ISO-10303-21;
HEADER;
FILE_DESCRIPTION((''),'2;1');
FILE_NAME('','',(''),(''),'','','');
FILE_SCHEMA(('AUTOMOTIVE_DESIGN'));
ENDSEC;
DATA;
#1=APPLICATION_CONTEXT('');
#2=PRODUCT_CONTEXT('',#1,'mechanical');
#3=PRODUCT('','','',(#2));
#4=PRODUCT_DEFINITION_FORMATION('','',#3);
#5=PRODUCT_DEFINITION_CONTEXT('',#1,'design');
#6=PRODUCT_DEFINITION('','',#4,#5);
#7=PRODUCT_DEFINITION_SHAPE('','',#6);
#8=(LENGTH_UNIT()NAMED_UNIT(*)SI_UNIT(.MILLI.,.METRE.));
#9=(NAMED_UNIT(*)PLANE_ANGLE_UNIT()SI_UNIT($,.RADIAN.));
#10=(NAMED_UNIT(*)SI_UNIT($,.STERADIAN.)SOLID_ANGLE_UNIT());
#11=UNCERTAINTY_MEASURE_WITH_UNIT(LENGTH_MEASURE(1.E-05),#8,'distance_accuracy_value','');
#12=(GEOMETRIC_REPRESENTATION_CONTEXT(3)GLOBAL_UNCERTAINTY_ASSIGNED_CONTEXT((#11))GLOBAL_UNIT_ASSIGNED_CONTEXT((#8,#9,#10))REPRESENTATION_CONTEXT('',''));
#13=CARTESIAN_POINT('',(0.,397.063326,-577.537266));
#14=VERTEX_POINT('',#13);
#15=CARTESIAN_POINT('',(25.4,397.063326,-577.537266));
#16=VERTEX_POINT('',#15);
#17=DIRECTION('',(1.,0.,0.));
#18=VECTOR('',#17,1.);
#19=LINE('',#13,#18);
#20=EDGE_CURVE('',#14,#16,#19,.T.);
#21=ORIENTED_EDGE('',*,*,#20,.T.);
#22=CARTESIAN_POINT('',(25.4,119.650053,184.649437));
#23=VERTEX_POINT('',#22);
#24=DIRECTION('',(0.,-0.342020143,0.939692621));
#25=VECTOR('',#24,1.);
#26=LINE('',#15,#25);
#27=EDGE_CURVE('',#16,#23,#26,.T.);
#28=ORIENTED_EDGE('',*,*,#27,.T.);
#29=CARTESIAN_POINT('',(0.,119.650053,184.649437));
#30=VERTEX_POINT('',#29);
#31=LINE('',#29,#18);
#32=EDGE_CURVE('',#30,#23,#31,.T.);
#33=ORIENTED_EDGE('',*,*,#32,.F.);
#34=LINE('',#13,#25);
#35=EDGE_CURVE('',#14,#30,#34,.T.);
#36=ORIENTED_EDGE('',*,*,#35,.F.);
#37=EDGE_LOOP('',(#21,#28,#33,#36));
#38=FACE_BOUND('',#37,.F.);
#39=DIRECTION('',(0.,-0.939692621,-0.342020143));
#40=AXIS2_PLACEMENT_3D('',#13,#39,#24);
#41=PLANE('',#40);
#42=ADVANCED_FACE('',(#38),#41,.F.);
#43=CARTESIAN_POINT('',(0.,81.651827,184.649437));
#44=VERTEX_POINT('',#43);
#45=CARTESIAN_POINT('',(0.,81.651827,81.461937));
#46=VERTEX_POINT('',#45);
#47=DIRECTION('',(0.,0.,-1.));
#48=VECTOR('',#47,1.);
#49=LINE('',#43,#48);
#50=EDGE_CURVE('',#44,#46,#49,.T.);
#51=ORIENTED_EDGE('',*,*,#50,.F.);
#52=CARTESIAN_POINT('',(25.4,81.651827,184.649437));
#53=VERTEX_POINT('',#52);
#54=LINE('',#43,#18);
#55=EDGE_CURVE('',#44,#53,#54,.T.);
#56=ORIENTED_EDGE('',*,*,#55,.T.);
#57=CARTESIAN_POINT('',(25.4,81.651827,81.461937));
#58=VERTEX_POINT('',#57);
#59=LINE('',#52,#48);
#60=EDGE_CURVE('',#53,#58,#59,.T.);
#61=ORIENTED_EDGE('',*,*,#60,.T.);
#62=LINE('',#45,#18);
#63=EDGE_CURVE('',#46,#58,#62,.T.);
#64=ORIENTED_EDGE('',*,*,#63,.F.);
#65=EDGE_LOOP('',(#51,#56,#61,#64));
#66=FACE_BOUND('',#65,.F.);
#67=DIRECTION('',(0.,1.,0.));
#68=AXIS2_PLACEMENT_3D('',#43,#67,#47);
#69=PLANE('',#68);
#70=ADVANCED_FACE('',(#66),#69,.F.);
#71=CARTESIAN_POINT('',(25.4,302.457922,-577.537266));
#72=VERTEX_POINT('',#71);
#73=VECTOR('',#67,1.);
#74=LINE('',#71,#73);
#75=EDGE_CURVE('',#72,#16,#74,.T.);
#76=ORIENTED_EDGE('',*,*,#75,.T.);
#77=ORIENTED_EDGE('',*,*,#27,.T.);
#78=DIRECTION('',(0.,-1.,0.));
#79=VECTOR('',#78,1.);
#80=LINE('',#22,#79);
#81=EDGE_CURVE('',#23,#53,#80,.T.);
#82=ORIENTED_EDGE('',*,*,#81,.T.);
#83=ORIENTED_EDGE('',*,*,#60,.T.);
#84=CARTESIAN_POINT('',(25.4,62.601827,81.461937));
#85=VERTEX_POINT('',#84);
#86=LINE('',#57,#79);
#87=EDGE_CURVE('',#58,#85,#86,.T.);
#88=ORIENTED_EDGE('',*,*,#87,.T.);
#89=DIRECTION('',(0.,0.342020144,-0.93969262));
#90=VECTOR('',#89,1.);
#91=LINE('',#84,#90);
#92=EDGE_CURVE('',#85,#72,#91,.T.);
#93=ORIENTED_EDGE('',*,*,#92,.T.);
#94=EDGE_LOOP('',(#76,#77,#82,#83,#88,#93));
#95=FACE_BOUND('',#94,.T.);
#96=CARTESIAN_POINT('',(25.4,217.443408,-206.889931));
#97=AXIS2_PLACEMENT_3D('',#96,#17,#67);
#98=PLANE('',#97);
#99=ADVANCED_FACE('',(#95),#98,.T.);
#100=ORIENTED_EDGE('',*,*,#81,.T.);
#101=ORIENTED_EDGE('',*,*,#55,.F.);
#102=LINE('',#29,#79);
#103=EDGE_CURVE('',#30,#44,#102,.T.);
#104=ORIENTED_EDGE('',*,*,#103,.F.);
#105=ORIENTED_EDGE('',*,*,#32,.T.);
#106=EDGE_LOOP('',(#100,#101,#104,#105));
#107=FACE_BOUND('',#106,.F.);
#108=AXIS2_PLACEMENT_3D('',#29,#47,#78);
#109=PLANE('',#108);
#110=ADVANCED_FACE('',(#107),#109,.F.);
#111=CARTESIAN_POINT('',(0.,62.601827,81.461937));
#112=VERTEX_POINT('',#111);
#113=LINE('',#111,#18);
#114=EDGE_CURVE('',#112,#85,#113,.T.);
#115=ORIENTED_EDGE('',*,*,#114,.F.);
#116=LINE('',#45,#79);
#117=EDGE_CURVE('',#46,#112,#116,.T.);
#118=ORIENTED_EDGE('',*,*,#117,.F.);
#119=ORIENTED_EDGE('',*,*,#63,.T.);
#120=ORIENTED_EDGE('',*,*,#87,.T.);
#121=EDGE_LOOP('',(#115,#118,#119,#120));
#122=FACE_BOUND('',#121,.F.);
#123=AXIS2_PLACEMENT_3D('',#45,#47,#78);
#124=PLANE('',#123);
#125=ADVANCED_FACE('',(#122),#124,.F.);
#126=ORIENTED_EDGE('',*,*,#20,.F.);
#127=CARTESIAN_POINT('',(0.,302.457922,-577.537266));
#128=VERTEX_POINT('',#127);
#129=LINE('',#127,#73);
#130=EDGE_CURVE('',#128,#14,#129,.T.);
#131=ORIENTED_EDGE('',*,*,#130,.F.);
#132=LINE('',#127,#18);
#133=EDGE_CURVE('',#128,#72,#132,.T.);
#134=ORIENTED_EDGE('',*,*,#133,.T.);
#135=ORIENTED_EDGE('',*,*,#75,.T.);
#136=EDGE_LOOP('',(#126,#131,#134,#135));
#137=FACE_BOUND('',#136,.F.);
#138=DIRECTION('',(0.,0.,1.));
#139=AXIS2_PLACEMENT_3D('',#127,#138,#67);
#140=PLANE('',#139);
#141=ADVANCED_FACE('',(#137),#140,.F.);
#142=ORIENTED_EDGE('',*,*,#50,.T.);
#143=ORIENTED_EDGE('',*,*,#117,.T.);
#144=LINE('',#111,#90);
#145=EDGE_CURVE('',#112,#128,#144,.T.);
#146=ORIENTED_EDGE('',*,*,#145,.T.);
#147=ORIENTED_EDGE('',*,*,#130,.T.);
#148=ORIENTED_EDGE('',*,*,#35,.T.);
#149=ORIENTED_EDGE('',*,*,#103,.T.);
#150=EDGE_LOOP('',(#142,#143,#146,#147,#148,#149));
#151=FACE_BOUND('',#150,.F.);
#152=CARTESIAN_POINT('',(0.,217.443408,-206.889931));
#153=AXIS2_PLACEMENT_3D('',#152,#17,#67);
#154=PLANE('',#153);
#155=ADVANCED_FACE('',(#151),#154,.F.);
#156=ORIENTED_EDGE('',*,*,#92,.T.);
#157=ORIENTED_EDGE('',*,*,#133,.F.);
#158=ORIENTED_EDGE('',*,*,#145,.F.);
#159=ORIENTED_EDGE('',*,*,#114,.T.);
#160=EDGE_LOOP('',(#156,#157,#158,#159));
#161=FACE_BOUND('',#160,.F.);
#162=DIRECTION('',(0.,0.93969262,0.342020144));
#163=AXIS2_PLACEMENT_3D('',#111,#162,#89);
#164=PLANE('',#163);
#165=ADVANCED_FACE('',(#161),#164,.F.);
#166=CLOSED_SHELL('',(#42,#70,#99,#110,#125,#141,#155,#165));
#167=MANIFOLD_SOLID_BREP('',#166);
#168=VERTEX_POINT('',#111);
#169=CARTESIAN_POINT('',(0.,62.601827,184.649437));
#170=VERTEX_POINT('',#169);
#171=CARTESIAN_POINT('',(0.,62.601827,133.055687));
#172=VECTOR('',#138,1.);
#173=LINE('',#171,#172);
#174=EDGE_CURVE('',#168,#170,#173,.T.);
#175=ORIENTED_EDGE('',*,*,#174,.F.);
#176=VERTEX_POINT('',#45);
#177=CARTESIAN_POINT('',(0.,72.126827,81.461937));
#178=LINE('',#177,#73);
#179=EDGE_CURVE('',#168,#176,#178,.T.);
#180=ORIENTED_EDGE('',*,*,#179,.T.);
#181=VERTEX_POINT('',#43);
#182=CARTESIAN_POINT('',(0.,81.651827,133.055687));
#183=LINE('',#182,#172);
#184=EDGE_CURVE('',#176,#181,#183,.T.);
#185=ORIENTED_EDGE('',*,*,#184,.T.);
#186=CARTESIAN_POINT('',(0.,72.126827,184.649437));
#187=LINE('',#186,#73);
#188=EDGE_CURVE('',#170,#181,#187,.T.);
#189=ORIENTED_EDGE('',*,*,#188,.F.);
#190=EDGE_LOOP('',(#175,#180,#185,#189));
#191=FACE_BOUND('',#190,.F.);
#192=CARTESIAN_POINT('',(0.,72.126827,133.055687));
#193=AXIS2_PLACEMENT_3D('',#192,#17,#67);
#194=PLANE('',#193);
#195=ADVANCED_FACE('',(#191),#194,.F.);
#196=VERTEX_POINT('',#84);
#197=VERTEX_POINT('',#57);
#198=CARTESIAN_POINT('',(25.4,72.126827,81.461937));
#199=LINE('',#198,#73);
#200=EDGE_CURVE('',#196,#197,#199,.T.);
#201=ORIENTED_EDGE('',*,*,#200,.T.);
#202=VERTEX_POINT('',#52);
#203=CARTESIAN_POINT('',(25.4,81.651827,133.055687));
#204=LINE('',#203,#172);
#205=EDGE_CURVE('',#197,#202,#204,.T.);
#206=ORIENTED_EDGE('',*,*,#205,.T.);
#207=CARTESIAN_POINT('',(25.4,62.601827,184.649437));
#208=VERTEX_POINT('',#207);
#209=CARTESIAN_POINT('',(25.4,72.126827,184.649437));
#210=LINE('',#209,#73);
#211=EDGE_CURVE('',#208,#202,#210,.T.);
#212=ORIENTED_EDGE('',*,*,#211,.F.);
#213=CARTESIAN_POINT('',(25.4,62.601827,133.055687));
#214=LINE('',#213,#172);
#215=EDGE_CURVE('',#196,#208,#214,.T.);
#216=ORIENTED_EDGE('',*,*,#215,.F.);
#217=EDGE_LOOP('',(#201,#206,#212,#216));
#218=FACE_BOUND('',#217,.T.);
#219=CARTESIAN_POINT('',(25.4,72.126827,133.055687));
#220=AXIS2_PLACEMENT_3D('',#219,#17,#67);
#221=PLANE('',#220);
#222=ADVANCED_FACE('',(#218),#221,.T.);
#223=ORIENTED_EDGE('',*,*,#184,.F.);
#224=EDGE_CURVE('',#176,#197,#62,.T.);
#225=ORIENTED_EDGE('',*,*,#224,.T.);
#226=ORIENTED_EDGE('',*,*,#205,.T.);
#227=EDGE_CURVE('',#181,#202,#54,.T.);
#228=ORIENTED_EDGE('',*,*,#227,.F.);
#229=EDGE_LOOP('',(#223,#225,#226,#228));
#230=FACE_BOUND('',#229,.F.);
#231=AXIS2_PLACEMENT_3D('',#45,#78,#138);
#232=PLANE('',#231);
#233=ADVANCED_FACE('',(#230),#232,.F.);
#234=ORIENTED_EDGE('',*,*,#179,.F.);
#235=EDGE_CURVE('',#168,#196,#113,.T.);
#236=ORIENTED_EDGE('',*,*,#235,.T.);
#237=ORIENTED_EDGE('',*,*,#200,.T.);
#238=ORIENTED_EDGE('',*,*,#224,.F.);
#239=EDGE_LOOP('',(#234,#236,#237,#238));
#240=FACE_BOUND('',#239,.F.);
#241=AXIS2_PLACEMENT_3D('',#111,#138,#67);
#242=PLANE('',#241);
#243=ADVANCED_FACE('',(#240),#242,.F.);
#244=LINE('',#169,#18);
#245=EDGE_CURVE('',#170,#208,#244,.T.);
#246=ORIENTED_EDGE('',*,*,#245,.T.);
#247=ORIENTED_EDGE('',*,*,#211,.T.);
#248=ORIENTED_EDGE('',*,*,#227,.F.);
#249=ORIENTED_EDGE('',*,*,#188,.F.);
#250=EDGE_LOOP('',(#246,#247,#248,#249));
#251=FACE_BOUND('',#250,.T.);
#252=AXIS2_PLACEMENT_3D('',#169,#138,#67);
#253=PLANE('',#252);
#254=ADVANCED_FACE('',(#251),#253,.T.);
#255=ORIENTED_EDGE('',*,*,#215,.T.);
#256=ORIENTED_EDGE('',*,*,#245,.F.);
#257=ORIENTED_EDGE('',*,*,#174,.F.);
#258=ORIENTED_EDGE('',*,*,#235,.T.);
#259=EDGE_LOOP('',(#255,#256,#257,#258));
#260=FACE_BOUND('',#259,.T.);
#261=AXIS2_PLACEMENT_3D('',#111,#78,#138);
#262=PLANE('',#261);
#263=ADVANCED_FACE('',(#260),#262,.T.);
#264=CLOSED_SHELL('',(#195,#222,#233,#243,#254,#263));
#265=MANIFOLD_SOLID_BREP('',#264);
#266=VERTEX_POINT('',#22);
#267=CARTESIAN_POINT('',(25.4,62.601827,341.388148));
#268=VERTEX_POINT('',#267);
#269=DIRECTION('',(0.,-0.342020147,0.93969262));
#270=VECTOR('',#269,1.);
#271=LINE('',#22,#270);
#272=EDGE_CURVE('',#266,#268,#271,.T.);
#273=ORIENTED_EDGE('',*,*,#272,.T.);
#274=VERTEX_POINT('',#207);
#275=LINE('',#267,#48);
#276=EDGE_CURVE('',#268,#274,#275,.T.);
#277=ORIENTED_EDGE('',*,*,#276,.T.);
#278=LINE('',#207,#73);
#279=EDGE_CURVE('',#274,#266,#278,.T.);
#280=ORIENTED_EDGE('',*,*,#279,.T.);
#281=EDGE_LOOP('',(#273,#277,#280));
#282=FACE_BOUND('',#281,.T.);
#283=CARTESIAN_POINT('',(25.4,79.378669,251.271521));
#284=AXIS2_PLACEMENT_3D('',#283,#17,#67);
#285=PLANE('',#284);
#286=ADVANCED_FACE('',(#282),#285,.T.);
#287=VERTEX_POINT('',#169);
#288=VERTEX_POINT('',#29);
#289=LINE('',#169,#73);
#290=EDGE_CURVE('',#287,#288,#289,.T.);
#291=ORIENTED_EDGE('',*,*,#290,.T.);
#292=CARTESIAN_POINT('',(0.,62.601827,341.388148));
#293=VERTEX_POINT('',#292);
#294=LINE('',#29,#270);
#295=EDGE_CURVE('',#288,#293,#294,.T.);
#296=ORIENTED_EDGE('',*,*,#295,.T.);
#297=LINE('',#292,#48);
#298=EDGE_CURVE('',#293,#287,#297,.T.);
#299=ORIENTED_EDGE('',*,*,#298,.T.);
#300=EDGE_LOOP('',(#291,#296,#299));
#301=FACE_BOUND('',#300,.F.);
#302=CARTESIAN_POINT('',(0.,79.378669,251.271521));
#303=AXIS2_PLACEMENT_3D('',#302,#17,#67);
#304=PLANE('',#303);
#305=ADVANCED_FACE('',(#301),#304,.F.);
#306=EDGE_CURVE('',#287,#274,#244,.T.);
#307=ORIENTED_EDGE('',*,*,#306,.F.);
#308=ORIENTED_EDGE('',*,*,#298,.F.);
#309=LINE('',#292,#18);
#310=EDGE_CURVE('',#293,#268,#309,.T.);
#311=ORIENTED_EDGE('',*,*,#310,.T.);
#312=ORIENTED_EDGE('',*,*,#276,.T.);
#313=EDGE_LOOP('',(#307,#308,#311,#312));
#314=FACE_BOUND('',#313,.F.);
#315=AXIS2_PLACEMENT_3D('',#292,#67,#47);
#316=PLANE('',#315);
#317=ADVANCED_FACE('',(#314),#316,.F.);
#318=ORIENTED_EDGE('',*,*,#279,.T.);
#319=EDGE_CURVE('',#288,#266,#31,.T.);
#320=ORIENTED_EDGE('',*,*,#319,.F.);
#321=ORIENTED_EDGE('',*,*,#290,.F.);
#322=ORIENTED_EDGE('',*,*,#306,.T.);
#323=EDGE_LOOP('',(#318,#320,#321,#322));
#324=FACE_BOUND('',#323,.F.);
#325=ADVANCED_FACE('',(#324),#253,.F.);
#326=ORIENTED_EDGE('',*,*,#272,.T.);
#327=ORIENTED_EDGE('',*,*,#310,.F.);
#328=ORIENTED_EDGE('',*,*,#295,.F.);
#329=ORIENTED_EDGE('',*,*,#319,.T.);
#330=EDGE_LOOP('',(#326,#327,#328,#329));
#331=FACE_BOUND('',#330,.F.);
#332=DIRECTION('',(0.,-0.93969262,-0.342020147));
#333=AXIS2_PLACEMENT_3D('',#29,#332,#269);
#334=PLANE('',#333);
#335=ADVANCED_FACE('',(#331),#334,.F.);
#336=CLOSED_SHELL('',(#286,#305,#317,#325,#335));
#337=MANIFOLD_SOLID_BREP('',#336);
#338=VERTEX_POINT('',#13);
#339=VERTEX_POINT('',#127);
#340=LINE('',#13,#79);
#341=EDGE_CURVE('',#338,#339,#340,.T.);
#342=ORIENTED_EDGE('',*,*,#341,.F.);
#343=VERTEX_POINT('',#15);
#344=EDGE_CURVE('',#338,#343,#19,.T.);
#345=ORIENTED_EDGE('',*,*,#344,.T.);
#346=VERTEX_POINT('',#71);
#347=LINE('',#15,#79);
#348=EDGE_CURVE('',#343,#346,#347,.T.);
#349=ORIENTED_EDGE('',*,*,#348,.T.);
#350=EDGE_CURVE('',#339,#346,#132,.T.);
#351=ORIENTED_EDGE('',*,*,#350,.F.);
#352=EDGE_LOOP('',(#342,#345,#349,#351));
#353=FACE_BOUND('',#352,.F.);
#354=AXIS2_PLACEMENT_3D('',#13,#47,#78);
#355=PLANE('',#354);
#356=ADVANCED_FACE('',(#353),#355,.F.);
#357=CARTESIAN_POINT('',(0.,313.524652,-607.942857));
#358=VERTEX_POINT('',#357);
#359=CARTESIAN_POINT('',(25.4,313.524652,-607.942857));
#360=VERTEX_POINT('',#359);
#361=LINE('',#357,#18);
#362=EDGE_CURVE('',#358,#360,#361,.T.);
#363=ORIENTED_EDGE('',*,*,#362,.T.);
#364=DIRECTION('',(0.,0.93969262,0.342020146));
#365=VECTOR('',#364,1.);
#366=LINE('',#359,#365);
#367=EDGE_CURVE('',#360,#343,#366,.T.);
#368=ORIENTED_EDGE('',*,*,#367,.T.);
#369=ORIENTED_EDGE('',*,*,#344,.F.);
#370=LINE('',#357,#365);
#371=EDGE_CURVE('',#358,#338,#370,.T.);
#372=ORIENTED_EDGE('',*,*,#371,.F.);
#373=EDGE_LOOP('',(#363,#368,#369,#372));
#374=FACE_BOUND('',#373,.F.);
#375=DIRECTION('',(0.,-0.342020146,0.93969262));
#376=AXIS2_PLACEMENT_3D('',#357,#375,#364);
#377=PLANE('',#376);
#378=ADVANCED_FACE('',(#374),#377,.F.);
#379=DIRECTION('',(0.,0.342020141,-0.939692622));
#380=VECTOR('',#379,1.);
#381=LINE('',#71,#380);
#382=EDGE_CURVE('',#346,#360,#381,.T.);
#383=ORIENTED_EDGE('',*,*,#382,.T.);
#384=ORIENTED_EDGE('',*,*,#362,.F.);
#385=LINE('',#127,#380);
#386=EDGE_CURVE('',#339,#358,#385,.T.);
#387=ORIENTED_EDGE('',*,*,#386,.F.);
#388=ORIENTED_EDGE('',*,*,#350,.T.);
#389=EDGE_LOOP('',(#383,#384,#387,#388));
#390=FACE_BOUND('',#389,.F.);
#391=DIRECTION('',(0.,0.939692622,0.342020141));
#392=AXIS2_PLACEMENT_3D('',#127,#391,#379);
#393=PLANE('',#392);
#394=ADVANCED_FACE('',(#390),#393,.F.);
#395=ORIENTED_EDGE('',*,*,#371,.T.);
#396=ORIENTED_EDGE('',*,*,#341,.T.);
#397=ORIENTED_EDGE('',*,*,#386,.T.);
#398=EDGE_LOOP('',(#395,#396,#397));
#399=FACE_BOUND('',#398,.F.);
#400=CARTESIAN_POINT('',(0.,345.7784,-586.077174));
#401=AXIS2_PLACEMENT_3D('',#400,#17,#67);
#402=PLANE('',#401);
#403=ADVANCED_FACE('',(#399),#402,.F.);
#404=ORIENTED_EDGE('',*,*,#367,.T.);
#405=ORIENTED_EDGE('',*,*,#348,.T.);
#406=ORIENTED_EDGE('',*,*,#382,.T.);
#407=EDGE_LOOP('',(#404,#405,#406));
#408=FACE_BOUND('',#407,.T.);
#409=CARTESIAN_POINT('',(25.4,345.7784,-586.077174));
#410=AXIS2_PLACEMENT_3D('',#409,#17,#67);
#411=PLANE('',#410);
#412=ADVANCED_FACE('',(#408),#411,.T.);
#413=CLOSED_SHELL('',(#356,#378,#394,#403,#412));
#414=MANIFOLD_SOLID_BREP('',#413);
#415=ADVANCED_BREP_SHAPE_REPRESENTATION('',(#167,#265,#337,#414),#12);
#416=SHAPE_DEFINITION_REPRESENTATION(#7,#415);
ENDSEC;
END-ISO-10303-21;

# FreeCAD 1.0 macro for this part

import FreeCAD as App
import Part
import Sketcher
Q = App.Units.Quantity


def add_polygon(sketch, points):
    """Adds a closed chain of lines whose ends are joined by coincident constraints."""
    first, n = sketch.GeometryCount, len(points)
    for a, b in zip(points, points[1:] + points[:1]):
        sketch.addGeometry(Part.LineSegment(App.Vector(*a, 0), App.Vector(*b, 0)), False)
    for i in range(n):
        sketch.addConstraint(Sketcher.Constraint("Coincident", first + i, 2, first + (i + 1) % n, 1))

doc = App.newDocument("Part")
body = doc.addObject("PartDesign::Body", "Body")

sketch1 = body.newObject("Sketcher::SketchObject", "Sketch")
sketch1.AttachmentSupport = (doc.getObject("YZ_Plane"), [""])
sketch1.MapMode = "FlatFace"
add_polygon(sketch1, [(63, 341), (63, 185), (120, 185)])
sketch1.addConstraint([
    Sketcher.Constraint("Vertical", 0),
    Sketcher.Constraint("Horizontal", 1),
    Sketcher.Constraint("Angle", 2, Q("110 deg")),
    Sketcher.Constraint("DistanceY", 0, 2, 0, 1, 156.738711),
    Sketcher.Constraint("DistanceY", -1, 1, 2, 2, 341.388148),
    Sketcher.Constraint("DistanceX", -1, 1, 0, 2, 62.601827),
])
pad1 = body.newObject("PartDesign::Pad", "Pad")
pad1.Profile = sketch1
pad1.Length = Q("1 in")
body2 = doc.addObject("PartDesign::Body", "Body001")

sketch2 = body2.newObject("Sketcher::SketchObject", "Sketch001")
sketch2.AttachmentSupport = (doc.getObject("YZ_Plane001"), [""])
sketch2.MapMode = "FlatFace"
add_polygon(sketch2, [(82, 81), (63, 81), (302, -578), (397, -578), (120, 185), (82, 185)])
sketch2.addConstraint([
    Sketcher.Constraint("Horizontal", 0),
    Sketcher.Constraint("Horizontal", 2),
    Sketcher.Constraint("Horizontal", 4),
    Sketcher.Constraint("Vertical", 5),
    Sketcher.Constraint("Parallel", 1, 3),
    Sketcher.Constraint("Angle", 1, Q("-70 deg")),
    Sketcher.Constraint("DistanceX", 0, 2, 0, 1, Q("0.75 in")),
    Sketcher.Constraint("DistanceY", 5, 2, 5, 1, Q("4.0625 in")),
    Sketcher.Constraint("DistanceX", 0, 2, 2, 2, 334.461499),
    Sketcher.Constraint("DistanceX", 2, 1, 2, 2, 94.605404),
    Sketcher.Constraint("DistanceX", -1, 1, 1, 2, 302.457922),
    Sketcher.Constraint("DistanceY", -1, 1, 0, 2, 81.461937),
])
pad2 = body2.newObject("PartDesign::Pad", "Pad001")
pad2.Profile = sketch2
pad2.Length = Q("1 in")
body3 = doc.addObject("PartDesign::Body", "Body002")

sketch3 = body3.newObject("Sketcher::SketchObject", "Sketch002")
sketch3.AttachmentSupport = (doc.getObject("YZ_Plane002"), [""])
sketch3.MapMode = "FlatFace"
add_polygon(sketch3, [(63, 185), (63, 81), (82, 81), (82, 185)])
sketch3.addConstraint([
    Sketcher.Constraint("Vertical", 0),
    Sketcher.Constraint("Horizontal", 1),
    Sketcher.Constraint("Vertical", 2),
    Sketcher.Constraint("Horizontal", 3),
    Sketcher.Constraint("DistanceX", 1, 1, 1, 2, Q("0.75 in")),
    Sketcher.Constraint("DistanceY", 0, 2, 0, 1, Q("4.0625 in")),
    Sketcher.Constraint("DistanceX", -1, 1, 0, 2, 62.601827),
    Sketcher.Constraint("DistanceY", -1, 1, 0, 2, 81.461937),
])
pad3 = body3.newObject("PartDesign::Pad", "Pad002")
pad3.Profile = sketch3
pad3.Length = Q("1 in")
body4 = doc.addObject("PartDesign::Body", "Body003")

sketch4 = body4.newObject("Sketcher::SketchObject", "Sketch003")
sketch4.AttachmentSupport = (doc.getObject("YZ_Plane003"), [""])
sketch4.MapMode = "FlatFace"
add_polygon(sketch4, [(397, -578), (302, -578), (314, -608)])
sketch4.addConstraint([
    Sketcher.Constraint("Horizontal", 0),
    Sketcher.Constraint("Perpendicular", 1, 2),
    Sketcher.Constraint("Angle", 1, Q("-70 deg")),
    Sketcher.Constraint("Distance", 2, Q("3.5 in")),
    Sketcher.Constraint("DistanceX", -1, 1, 0, 2, 302.457922),
    Sketcher.Constraint("DistanceY", 0, 2, -1, 1, 577.537266),
])
pad4 = body4.newObject("PartDesign::Pad", "Pad003")
pad4.Profile = sketch4
pad4.Length = Q("1 in")

doc.recompute()
